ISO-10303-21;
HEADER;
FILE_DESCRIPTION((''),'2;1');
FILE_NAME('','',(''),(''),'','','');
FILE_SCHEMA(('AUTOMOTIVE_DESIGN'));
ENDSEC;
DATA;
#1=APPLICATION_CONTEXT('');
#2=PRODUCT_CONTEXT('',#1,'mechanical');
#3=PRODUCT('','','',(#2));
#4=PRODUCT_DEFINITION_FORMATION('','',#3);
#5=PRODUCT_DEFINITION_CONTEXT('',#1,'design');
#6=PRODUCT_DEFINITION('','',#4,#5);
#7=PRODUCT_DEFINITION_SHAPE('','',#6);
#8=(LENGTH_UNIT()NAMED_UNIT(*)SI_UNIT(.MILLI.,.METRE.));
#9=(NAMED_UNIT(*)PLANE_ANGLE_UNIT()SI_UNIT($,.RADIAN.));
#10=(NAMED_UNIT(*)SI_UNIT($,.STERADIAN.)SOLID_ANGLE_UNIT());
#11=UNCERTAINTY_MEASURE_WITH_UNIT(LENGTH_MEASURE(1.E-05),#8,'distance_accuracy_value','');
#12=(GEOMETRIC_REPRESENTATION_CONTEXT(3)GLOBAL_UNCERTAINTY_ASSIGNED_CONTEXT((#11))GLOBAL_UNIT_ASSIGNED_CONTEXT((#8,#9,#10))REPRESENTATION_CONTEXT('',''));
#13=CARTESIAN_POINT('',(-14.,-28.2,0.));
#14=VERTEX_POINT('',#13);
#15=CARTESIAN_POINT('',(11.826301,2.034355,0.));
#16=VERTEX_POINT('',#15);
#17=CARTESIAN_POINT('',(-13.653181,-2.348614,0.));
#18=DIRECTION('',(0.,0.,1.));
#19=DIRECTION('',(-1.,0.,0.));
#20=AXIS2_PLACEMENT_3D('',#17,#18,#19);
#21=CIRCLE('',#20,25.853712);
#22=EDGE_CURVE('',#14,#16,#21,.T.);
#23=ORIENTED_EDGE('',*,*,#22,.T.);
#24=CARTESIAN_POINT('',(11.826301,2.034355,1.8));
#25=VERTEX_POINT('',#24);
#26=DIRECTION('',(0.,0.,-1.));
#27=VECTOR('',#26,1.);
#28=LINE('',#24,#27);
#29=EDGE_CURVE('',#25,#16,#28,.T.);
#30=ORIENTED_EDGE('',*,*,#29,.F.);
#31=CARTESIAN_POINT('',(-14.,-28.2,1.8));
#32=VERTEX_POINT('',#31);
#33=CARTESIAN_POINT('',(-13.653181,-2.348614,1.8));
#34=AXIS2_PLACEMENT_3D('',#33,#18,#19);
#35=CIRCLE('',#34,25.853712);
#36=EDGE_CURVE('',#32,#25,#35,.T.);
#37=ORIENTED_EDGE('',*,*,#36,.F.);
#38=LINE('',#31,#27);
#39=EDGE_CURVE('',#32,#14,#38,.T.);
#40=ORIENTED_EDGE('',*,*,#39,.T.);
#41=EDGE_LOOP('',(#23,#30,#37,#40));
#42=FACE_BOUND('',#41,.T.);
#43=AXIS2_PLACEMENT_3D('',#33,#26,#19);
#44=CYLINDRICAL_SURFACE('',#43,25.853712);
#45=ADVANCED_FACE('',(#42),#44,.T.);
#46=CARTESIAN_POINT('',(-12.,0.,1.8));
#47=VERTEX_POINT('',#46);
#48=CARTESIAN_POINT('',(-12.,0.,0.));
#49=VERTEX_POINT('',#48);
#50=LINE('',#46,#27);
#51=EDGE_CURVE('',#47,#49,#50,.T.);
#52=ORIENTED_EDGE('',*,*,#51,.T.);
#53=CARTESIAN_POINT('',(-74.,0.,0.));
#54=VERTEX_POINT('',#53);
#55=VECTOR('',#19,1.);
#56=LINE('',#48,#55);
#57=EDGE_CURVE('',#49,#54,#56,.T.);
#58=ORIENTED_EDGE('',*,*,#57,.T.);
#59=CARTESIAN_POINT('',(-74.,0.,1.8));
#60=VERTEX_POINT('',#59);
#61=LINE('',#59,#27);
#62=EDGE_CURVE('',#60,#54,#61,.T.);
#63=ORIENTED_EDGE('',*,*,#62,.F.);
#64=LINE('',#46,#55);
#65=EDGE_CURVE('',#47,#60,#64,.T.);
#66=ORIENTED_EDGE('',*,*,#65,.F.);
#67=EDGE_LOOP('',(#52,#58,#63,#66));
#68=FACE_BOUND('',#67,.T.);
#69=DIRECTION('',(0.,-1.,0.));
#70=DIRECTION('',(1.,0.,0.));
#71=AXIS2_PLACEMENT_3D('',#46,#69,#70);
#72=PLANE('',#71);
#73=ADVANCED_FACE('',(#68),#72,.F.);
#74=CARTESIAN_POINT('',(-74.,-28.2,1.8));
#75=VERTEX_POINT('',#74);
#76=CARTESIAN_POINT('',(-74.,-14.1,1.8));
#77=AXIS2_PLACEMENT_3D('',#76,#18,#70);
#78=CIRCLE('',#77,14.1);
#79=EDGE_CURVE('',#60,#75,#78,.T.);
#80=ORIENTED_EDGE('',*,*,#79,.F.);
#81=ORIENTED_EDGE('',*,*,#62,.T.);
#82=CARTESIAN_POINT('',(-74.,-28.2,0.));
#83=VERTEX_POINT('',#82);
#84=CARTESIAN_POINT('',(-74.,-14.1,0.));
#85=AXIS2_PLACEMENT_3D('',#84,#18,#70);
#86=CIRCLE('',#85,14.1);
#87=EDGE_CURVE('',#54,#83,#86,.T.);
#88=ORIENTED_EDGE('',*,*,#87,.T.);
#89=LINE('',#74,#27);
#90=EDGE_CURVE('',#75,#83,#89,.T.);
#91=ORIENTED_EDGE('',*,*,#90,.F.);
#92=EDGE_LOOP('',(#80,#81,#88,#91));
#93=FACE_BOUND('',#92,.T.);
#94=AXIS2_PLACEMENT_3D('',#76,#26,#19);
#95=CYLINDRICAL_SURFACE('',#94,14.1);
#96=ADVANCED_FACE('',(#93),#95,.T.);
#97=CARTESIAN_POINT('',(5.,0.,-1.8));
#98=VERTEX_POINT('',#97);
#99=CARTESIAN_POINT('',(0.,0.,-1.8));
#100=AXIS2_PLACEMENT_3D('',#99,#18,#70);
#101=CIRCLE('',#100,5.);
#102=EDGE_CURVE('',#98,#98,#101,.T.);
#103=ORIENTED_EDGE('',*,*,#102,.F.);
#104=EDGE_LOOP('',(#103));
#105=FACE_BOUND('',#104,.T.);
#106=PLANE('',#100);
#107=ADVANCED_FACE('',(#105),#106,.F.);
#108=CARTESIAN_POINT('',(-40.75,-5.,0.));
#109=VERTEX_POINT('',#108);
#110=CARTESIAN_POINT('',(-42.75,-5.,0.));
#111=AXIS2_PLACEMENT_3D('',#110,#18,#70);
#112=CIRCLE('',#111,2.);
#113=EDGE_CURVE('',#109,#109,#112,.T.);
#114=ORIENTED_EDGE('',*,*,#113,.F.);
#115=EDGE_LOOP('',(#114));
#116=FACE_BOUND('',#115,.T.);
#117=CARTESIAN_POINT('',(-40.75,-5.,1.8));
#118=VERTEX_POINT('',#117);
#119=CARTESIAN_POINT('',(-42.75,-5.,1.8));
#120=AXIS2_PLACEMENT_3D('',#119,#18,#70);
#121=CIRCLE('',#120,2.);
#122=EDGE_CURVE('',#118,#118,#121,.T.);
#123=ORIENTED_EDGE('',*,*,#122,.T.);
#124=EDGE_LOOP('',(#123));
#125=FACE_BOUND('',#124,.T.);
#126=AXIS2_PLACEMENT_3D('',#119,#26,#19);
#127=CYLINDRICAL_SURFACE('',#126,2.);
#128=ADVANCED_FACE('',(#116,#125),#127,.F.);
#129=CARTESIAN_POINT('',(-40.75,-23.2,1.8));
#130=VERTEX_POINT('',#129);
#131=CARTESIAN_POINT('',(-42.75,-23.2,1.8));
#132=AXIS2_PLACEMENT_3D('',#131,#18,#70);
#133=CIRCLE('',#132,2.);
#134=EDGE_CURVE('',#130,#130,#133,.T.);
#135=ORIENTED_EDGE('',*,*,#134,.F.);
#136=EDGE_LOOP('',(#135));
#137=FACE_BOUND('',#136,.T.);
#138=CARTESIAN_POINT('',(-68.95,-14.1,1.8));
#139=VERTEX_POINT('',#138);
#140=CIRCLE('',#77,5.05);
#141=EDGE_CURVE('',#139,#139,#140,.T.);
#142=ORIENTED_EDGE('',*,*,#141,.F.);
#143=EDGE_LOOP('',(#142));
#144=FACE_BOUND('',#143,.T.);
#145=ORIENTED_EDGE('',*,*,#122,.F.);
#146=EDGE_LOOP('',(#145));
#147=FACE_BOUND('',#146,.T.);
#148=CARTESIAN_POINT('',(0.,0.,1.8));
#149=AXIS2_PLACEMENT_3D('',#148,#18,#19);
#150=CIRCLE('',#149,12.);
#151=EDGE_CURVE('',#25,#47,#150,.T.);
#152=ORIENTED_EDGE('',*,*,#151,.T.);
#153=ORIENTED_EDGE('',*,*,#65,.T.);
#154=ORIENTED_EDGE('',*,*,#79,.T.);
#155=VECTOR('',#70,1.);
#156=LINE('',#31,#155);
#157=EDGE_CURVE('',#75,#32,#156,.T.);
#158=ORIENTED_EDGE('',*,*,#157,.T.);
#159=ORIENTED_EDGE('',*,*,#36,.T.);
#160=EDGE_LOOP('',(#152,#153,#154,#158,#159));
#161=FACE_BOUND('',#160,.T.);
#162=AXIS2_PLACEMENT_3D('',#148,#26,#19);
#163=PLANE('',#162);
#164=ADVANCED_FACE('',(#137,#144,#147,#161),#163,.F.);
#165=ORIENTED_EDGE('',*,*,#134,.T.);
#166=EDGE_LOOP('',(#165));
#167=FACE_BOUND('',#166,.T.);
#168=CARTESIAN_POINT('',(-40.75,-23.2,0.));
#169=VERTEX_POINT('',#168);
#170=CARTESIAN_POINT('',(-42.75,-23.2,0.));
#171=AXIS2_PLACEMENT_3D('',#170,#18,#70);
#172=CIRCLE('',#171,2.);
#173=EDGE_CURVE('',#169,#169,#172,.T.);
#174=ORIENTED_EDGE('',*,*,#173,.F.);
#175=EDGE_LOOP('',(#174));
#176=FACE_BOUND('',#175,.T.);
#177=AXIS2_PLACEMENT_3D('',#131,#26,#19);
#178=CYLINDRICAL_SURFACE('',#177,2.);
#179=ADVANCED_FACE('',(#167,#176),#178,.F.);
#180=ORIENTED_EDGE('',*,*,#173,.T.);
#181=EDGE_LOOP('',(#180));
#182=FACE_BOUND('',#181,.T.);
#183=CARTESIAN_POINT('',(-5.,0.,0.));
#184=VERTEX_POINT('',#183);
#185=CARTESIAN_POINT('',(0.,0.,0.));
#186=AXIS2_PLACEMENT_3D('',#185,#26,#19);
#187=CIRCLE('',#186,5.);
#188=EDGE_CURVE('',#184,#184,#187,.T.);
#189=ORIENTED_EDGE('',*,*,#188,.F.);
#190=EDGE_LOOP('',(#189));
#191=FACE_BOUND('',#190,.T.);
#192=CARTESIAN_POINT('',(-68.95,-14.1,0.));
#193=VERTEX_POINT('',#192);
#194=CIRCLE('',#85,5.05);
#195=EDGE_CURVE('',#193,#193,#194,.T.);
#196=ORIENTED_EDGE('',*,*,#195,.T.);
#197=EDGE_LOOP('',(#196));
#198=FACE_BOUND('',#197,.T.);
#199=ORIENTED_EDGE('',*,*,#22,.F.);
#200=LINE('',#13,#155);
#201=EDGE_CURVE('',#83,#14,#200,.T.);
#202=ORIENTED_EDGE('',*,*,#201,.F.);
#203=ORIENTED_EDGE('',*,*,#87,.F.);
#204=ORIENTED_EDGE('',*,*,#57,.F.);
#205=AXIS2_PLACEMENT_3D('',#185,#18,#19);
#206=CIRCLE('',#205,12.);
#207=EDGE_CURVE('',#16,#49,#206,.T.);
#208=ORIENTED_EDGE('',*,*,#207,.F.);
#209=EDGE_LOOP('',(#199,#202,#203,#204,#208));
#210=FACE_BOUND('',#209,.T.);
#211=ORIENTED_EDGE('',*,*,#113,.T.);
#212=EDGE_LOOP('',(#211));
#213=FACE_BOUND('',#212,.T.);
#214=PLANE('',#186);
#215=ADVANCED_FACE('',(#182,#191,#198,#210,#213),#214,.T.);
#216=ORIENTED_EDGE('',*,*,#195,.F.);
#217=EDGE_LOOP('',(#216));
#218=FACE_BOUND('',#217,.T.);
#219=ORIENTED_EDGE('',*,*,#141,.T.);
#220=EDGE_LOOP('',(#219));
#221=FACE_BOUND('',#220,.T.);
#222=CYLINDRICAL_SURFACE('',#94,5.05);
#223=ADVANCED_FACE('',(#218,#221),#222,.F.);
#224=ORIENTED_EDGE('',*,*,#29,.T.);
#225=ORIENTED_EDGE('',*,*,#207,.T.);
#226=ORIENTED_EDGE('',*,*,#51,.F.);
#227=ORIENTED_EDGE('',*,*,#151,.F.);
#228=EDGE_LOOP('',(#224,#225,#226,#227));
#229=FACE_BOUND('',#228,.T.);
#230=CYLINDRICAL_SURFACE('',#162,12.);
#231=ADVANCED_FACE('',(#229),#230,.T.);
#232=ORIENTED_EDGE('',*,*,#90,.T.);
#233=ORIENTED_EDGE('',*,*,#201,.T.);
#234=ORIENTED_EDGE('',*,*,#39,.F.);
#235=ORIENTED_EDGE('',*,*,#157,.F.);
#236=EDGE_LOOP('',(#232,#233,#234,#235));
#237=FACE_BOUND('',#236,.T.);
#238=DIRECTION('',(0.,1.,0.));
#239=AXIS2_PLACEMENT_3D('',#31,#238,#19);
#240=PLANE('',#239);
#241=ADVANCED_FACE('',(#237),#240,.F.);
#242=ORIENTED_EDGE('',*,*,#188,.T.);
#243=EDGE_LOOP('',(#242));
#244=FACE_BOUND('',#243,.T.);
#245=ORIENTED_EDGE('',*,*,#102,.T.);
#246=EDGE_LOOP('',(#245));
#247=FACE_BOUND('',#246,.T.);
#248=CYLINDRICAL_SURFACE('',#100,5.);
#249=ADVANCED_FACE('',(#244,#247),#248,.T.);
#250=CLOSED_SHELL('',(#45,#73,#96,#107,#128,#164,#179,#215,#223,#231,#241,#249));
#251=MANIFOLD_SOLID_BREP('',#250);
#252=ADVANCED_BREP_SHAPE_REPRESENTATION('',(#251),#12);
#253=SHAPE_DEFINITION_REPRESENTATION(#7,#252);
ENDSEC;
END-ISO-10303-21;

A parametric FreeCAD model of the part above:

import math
import FreeCAD as App
import Part
import Sketcher
Q = App.Units.Quantity

doc = App.newDocument("Part")
body = doc.addObject("PartDesign::Body", "Body")

sketch1 = body.newObject("Sketcher::SketchObject", "Sketch")
sketch1.AttachmentSupport = (doc.getObject("XY_Plane"), [""])
sketch1.MapMode = "FlatFace"
sketch1.addGeometry([
    Part.LineSegment(App.Vector(-12, 0, 0), App.Vector(-74, 0, 0)),
    Part.ArcOfCircle(Part.Circle(App.Vector(-74, -14.1, 0), App.Vector(0, 0, 1), 14.1), math.radians(90), math.radians(270)),
    Part.LineSegment(App.Vector(-74, -28.2, 0), App.Vector(-14, -28.2, 0)),
    Part.ArcOfCircle(Part.Circle(App.Vector(-13.7, -2.3, 0), App.Vector(0, 0, 1), 25.9), math.radians(-91), math.radians(10)),
    Part.ArcOfCircle(Part.Circle(App.Vector(0, 0, 0), App.Vector(0, 0, 1), 12), math.radians(10), math.radians(180)),
    Part.Circle(App.Vector(-42.8, -23.2, 0), App.Vector(0, 0, 1), 2),
    Part.Circle(App.Vector(-74, -14.1, 0), App.Vector(0, 0, 1), 5),
    Part.Circle(App.Vector(-42.8, -5, 0), App.Vector(0, 0, 1), 2),
], False)
sketch1.addConstraint([
    Sketcher.Constraint("Tangent", 0, 2, 1, 1),
    Sketcher.Constraint("Tangent", 1, 2, 2, 1),
    Sketcher.Constraint("Coincident", 2, 2, 3, 1),
    Sketcher.Constraint("Tangent", 3, 2, 4, 1),
    Sketcher.Constraint("Coincident", 4, 2, 0, 1),
    Sketcher.Constraint("Horizontal", 0),
    Sketcher.Constraint("Horizontal", 2),
    Sketcher.Constraint("Coincident", 4, 3, -1, 1),
    Sketcher.Constraint("Coincident", 6, 3, 1, 3),
    Sketcher.Constraint("Equal", 5, 7),
    Sketcher.Constraint("PointOnObject", 0, 2, -1),
    Sketcher.Constraint("Vertical", 5, 3, 7, 3),
    Sketcher.Constraint("Diameter", 5, Q("4 mm")),
    Sketcher.Constraint("Radius", 4, Q("12 mm")),
    Sketcher.Constraint("Diameter", 6, Q("10.1 mm")),
    Sketcher.Constraint("Radius", 1, Q("14.1 mm")),
    Sketcher.Constraint("DistanceX", 0, 2, 0, 1, Q("62 mm")),
    Sketcher.Constraint("DistanceX", 2, 1, 2, 2, Q("60 mm")),
    Sketcher.Constraint("DistanceY", 7, 3, -1, 1, Q("5 mm")),
    Sketcher.Constraint("DistanceY", 1, 2, 5, 3, Q("5 mm")),
    Sketcher.Constraint("DistanceX", 5, 3, -1, 1, Q("42.75 mm")),
    Sketcher.Constraint("Radius", 3, Q("25.853712 mm")),
])
pad1 = body.newObject("PartDesign::Pad", "Pad")
pad1.Profile = sketch1
pad1.Length = 1.8

sketch2 = body.newObject("Sketcher::SketchObject", "Sketch001")
sketch2.AttachmentSupport = (doc.getObject("XY_Plane"), [""])
sketch2.MapMode = "FlatFace"
sketch2.addGeometry(Part.Circle(App.Vector(0, 0, 0), App.Vector(0, 0, 1), 5), False)
sketch2.addConstraint([
    Sketcher.Constraint("Coincident", 0, 3, -1, 1),
    Sketcher.Constraint("Diameter", 0, Q("10 mm")),
])
pad2 = body.newObject("PartDesign::Pad", "Pad001")
pad2.Profile = sketch2
pad2.Length = 1.8
pad2.Reversed = True

doc.recompute()
